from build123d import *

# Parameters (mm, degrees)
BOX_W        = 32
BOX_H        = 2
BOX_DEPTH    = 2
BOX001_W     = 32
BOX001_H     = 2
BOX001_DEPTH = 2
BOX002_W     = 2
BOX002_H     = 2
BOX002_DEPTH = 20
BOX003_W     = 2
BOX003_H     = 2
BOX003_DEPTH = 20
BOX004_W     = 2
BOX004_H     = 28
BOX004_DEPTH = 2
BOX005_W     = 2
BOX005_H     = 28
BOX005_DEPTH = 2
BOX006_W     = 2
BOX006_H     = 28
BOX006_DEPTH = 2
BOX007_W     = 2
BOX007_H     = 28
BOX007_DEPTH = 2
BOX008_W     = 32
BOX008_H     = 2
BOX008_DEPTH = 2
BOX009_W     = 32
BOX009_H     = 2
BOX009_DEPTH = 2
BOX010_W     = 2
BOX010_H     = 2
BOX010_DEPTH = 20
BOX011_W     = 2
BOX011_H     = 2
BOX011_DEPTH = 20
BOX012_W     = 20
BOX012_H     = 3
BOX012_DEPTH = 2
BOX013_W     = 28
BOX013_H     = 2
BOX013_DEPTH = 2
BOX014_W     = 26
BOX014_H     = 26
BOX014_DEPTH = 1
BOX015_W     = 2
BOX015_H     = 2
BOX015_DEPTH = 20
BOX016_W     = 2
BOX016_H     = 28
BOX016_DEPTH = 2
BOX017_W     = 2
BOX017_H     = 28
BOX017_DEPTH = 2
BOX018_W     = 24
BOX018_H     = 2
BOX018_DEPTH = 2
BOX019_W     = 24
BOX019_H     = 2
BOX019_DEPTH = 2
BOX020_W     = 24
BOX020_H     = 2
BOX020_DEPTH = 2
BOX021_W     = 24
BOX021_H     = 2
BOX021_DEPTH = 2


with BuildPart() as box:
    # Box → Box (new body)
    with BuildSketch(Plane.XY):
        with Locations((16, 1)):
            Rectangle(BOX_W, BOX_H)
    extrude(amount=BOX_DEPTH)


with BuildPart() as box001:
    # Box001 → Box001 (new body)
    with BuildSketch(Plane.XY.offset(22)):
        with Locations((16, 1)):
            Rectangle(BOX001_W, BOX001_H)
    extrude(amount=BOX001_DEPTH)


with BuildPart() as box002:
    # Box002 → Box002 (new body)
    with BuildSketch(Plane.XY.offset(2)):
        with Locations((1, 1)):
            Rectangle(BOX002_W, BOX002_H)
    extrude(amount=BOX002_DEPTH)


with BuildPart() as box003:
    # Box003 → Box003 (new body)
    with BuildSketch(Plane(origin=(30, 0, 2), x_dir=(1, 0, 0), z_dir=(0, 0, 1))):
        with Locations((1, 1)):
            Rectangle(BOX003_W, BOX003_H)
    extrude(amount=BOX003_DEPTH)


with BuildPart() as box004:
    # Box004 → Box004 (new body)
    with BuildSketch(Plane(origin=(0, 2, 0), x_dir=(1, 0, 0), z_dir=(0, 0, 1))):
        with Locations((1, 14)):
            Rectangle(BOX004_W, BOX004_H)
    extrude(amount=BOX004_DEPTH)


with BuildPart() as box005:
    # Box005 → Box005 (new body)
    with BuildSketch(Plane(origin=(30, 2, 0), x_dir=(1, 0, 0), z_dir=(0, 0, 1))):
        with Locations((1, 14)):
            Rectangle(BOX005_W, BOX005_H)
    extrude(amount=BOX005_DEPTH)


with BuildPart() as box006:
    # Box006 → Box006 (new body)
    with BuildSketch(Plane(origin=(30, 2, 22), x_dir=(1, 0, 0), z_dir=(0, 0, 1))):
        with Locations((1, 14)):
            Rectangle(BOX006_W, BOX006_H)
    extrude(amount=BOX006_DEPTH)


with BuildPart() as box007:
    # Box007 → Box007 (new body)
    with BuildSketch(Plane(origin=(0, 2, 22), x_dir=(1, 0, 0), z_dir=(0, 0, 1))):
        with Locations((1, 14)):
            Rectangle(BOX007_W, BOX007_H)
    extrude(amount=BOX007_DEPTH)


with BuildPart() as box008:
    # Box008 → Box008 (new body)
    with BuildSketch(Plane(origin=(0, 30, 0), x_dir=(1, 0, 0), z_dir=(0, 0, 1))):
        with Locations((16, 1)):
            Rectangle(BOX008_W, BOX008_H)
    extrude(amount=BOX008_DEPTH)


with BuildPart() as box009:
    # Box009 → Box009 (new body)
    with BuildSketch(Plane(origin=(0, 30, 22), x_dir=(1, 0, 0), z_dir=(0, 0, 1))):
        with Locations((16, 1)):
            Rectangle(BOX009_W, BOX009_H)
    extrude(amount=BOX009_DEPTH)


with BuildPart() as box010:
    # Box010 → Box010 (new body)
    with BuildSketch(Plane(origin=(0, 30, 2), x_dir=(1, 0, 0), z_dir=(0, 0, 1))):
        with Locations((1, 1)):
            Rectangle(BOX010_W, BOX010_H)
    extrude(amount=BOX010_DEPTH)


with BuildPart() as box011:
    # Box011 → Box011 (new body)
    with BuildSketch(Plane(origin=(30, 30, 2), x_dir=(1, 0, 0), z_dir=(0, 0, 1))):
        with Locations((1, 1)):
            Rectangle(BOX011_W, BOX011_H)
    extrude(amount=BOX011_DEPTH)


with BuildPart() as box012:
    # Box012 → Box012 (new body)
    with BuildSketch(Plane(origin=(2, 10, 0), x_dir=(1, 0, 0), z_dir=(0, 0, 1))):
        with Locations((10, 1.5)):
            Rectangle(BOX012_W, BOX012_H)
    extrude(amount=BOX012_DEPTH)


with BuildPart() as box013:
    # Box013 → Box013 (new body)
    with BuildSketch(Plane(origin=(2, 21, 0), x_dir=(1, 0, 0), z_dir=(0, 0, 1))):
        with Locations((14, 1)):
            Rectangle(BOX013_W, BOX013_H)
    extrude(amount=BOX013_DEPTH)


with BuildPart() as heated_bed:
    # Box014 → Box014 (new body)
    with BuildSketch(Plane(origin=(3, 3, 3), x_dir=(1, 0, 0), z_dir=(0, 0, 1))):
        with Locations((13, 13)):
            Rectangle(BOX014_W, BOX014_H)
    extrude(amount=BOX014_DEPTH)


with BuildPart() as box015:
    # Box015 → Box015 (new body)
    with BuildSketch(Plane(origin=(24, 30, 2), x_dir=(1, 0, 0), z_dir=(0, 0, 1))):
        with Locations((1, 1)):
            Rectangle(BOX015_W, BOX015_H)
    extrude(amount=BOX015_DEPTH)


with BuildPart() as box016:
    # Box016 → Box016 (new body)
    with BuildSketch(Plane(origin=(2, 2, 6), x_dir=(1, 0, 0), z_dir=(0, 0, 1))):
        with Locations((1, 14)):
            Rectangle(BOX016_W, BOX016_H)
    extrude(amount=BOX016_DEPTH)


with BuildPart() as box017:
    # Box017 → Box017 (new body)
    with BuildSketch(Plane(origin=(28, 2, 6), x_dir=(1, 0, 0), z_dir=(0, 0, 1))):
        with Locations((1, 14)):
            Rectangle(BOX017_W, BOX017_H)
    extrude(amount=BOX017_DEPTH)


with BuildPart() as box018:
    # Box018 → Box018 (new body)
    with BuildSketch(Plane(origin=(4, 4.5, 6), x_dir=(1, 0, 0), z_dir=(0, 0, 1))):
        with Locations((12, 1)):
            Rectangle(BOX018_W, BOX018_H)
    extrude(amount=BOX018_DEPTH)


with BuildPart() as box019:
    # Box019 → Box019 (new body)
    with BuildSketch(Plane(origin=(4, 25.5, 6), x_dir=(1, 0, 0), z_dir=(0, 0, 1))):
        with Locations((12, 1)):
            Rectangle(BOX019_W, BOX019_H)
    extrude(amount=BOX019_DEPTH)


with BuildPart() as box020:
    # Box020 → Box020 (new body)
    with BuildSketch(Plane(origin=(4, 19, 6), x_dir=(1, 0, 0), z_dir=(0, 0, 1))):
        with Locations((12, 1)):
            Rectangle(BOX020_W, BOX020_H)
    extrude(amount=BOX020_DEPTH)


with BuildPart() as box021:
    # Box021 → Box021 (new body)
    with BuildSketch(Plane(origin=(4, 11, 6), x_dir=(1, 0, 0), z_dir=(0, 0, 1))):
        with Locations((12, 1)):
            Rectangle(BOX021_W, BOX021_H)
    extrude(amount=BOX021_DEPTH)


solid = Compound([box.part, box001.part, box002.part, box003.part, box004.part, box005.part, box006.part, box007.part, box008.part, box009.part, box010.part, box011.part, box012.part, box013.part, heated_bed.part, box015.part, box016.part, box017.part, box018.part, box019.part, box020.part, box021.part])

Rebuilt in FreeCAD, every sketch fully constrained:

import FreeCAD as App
import Part
import Sketcher

V = App.Vector
Q = App.Units.Quantity

doc = App.newDocument("Part")
params = doc.addObject("Spreadsheet::Sheet", "Params")
for row, (alias, value) in enumerate([
    ("sketch1_width", "32 mm"),
    ("sketch1_height", "2 mm"),
    ("pad1_length", "2 mm"),
    ("sketch2_width", "32 mm"),
    ("sketch2_height", "2 mm"),
    ("pad2_length", "2 mm"),
    ("sketch3_width", "2 mm"),
    ("pad3_length", "20 mm"),
    ("sketch4_width", "2 mm"),
    ("pad4_length", "20 mm"),
    ("sketch5_width", "2 mm"),
    ("sketch5_height", "28 mm"),
    ("pad5_length", "2 mm"),
    ("sketch6_width", "2 mm"),
    ("sketch6_height", "28 mm"),
    ("pad6_length", "2 mm"),
    ("sketch7_width", "2 mm"),
    ("sketch7_height", "28 mm"),
    ("pad7_length", "2 mm"),
    ("sketch8_width", "2 mm"),
    ("sketch8_height", "28 mm"),
    ("pad8_length", "2 mm"),
    ("sketch9_width", "32 mm"),
    ("sketch9_height", "2 mm"),
    ("pad9_length", "2 mm"),
    ("sketch10_width", "32 mm"),
    ("sketch10_height", "2 mm"),
    ("pad10_length", "2 mm"),
    ("sketch11_width", "2 mm"),
    ("pad11_length", "20 mm"),
    ("sketch12_width", "2 mm"),
    ("pad12_length", "20 mm"),
    ("sketch13_width", "20 mm"),
    ("sketch13_height", "3 mm"),
    ("pad13_length", "2 mm"),
    ("sketch14_width", "28 mm"),
    ("sketch14_height", "2 mm"),
    ("pad14_length", "2 mm"),
    ("sketch15_width", "26 mm"),
    ("pad15_length", "1 mm"),
    ("sketch16_width", "2 mm"),
    ("pad16_length", "20 mm"),
    ("sketch17_width", "2 mm"),
    ("sketch17_height", "28 mm"),
    ("pad17_length", "2 mm"),
    ("sketch18_width", "2 mm"),
    ("sketch18_height", "28 mm"),
    ("pad18_length", "2 mm"),
    ("sketch19_width", "24 mm"),
    ("sketch19_height", "2 mm"),
    ("pad19_length", "2 mm"),
    ("sketch20_width", "24 mm"),
    ("sketch20_height", "2 mm"),
    ("pad20_length", "2 mm"),
    ("sketch21_width", "24 mm"),
    ("sketch21_height", "2 mm"),
    ("pad21_length", "2 mm"),
    ("sketch22_width", "24 mm"),
    ("sketch22_height", "2 mm"),
    ("pad22_length", "2 mm"),
], start=1):
    params.set(f"A{row}", alias)
    params.set(f"B{row}", "=" + value)
    params.setAlias(f"B{row}", alias)

body = doc.addObject("PartDesign::Body", "Body")

# Sketch on XY plane
sketch1 = body.newObject("Sketcher::SketchObject", "Sketch")
sketch1.AttachmentSupport = (doc.getObject("XY_Plane"), [""])
sketch1.MapMode = "FlatFace"
sketch1.addGeometry([
    Part.LineSegment(V(0, 2, 0), V(0, 0, 0)),
    Part.LineSegment(V(0, 0, 0), V(32, 0, 0)),
    Part.LineSegment(V(32, 0, 0), V(32, 2, 0)),
    Part.LineSegment(V(32, 2, 0), V(0, 2, 0)),
], False)
sketch1.addConstraint([
    Sketcher.Constraint("Coincident", 0, 2, 1, 1),
    Sketcher.Constraint("Coincident", 1, 2, 2, 1),
    Sketcher.Constraint("Coincident", 2, 2, 3, 1),
    Sketcher.Constraint("Coincident", 3, 2, 0, 1),
    Sketcher.Constraint("Vertical", 0),
    Sketcher.Constraint("Horizontal", 1),
    Sketcher.Constraint("Vertical", 2),
    Sketcher.Constraint("Horizontal", 3),
    Sketcher.Constraint("Coincident", 0, 2, -1, 1),
    Sketcher.Constraint("DistanceX", 1, 1, 1, 2, Q("32 mm")),
    Sketcher.Constraint("DistanceY", 0, 2, 0, 1, Q("2 mm")),
])
sketch1.setExpression("Constraints[9]", "Params.sketch1_width")
sketch1.setExpression("Constraints[10]", "Params.sketch1_height")
pad1 = body.newObject("PartDesign::Pad", "Pad")
pad1.Profile = sketch1
pad1.setExpression("Length", "Params.pad1_length")
body2 = doc.addObject("PartDesign::Body", "Body001")

# Sketch on XY plane
sketch2 = body2.newObject("Sketcher::SketchObject", "Sketch001")
sketch2.AttachmentSupport = (doc.getObject("XY_Plane001"), [""])
sketch2.MapMode = "FlatFace"
sketch2.AttachmentOffset = App.Placement(V(0, 0, 22), App.Rotation())
sketch2.addGeometry([
    Part.LineSegment(V(0, 2, 0), V(0, 0, 0)),
    Part.LineSegment(V(0, 0, 0), V(32, 0, 0)),
    Part.LineSegment(V(32, 0, 0), V(32, 2, 0)),
    Part.LineSegment(V(32, 2, 0), V(0, 2, 0)),
], False)
sketch2.addConstraint([
    Sketcher.Constraint("Coincident", 0, 2, 1, 1),
    Sketcher.Constraint("Coincident", 1, 2, 2, 1),
    Sketcher.Constraint("Coincident", 2, 2, 3, 1),
    Sketcher.Constraint("Coincident", 3, 2, 0, 1),
    Sketcher.Constraint("Vertical", 0),
    Sketcher.Constraint("Horizontal", 1),
    Sketcher.Constraint("Vertical", 2),
    Sketcher.Constraint("Horizontal", 3),
    Sketcher.Constraint("Coincident", 0, 2, -1, 1),
    Sketcher.Constraint("DistanceX", 1, 1, 1, 2, Q("32 mm")),
    Sketcher.Constraint("DistanceY", 0, 2, 0, 1, Q("2 mm")),
])
sketch2.setExpression("Constraints[9]", "Params.sketch2_width")
sketch2.setExpression("Constraints[10]", "Params.sketch2_height")
pad2 = body2.newObject("PartDesign::Pad", "Pad001")
pad2.Profile = sketch2
pad2.setExpression("Length", "Params.pad2_length")
body3 = doc.addObject("PartDesign::Body", "Body002")

# Sketch on XY plane
sketch3 = body3.newObject("Sketcher::SketchObject", "Sketch002")
sketch3.AttachmentSupport = (doc.getObject("XY_Plane002"), [""])
sketch3.MapMode = "FlatFace"
sketch3.AttachmentOffset = App.Placement(V(0, 0, 2), App.Rotation())
sketch3.addGeometry([
    Part.LineSegment(V(0, 2, 0), V(0, 0, 0)),
    Part.LineSegment(V(0, 0, 0), V(2, 0, 0)),
    Part.LineSegment(V(2, 0, 0), V(2, 2, 0)),
    Part.LineSegment(V(2, 2, 0), V(0, 2, 0)),
], False)
sketch3.addConstraint([
    Sketcher.Constraint("Coincident", 0, 2, 1, 1),
    Sketcher.Constraint("Coincident", 1, 2, 2, 1),
    Sketcher.Constraint("Coincident", 2, 2, 3, 1),
    Sketcher.Constraint("Coincident", 3, 2, 0, 1),
    Sketcher.Constraint("Vertical", 0),
    Sketcher.Constraint("Horizontal", 1),
    Sketcher.Constraint("Vertical", 2),
    Sketcher.Constraint("Horizontal", 3),
    Sketcher.Constraint("Coincident", 0, 2, -1, 1),
    Sketcher.Constraint("Equal", 3, 0),
    Sketcher.Constraint("DistanceX", 1, 1, 1, 2, Q("2 mm")),
])
sketch3.setExpression("Constraints[10]", "Params.sketch3_width")
pad3 = body3.newObject("PartDesign::Pad", "Pad002")
pad3.Profile = sketch3
pad3.setExpression("Length", "Params.pad3_length")
body4 = doc.addObject("PartDesign::Body", "Body003")

# Sketch on XY plane
sketch4 = body4.newObject("Sketcher::SketchObject", "Sketch003")
sketch4.AttachmentSupport = (doc.getObject("XY_Plane003"), [""])
sketch4.MapMode = "FlatFace"
sketch4.AttachmentOffset = App.Placement(V(0, 0, 2), App.Rotation())
sketch4.addGeometry([
    Part.LineSegment(V(30, 2, 0), V(30, 0, 0)),
    Part.LineSegment(V(30, 0, 0), V(32, 0, 0)),
    Part.LineSegment(V(32, 0, 0), V(32, 2, 0)),
    Part.LineSegment(V(32, 2, 0), V(30, 2, 0)),
], False)
sketch4.addConstraint([
    Sketcher.Constraint("Coincident", 0, 2, 1, 1),
    Sketcher.Constraint("Coincident", 1, 2, 2, 1),
    Sketcher.Constraint("Coincident", 2, 2, 3, 1),
    Sketcher.Constraint("Coincident", 3, 2, 0, 1),
    Sketcher.Constraint("Vertical", 0),
    Sketcher.Constraint("Horizontal", 1),
    Sketcher.Constraint("Vertical", 2),
    Sketcher.Constraint("Horizontal", 3),
    Sketcher.Constraint("PointOnObject", 0, 2, -1),
    Sketcher.Constraint("Equal", 3, 0),
    Sketcher.Constraint("DistanceX", 1, 1, 1, 2, Q("2 mm")),
    Sketcher.Constraint("DistanceX", -1, 1, 0, 2, Q("30 mm")),
])
sketch4.setExpression("Constraints[10]", "Params.sketch4_width")
pad4 = body4.newObject("PartDesign::Pad", "Pad003")
pad4.Profile = sketch4
pad4.setExpression("Length", "Params.pad4_length")
body5 = doc.addObject("PartDesign::Body", "Body004")

# Sketch on XY plane
sketch5 = body5.newObject("Sketcher::SketchObject", "Sketch004")
sketch5.AttachmentSupport = (doc.getObject("XY_Plane004"), [""])
sketch5.MapMode = "FlatFace"
sketch5.addGeometry([
    Part.LineSegment(V(0, 30, 0), V(0, 2, 0)),
    Part.LineSegment(V(0, 2, 0), V(2, 2, 0)),
    Part.LineSegment(V(2, 2, 0), V(2, 30, 0)),
    Part.LineSegment(V(2, 30, 0), V(0, 30, 0)),
], False)
sketch5.addConstraint([
    Sketcher.Constraint("Coincident", 0, 2, 1, 1),
    Sketcher.Constraint("Coincident", 1, 2, 2, 1),
    Sketcher.Constraint("Coincident", 2, 2, 3, 1),
    Sketcher.Constraint("Coincident", 3, 2, 0, 1),
    Sketcher.Constraint("Vertical", 0),
    Sketcher.Constraint("Horizontal", 1),
    Sketcher.Constraint("Vertical", 2),
    Sketcher.Constraint("Horizontal", 3),
    Sketcher.Constraint("PointOnObject", 0, 2, -2),
    Sketcher.Constraint("DistanceX", 1, 1, 1, 2, Q("2 mm")),
    Sketcher.Constraint("DistanceY", 0, 2, 0, 1, Q("28 mm")),
    Sketcher.Constraint("DistanceY", -1, 1, 0, 2, Q("2 mm")),
])
sketch5.setExpression("Constraints[9]", "Params.sketch5_width")
sketch5.setExpression("Constraints[10]", "Params.sketch5_height")
pad5 = body5.newObject("PartDesign::Pad", "Pad004")
pad5.Profile = sketch5
pad5.setExpression("Length", "Params.pad5_length")
body6 = doc.addObject("PartDesign::Body", "Body005")

# Sketch on XY plane
sketch6 = body6.newObject("Sketcher::SketchObject", "Sketch005")
sketch6.AttachmentSupport = (doc.getObject("XY_Plane005"), [""])
sketch6.MapMode = "FlatFace"
sketch6.addGeometry([
    Part.LineSegment(V(30, 30, 0), V(30, 2, 0)),
    Part.LineSegment(V(30, 2, 0), V(32, 2, 0)),
    Part.LineSegment(V(32, 2, 0), V(32, 30, 0)),
    Part.LineSegment(V(32, 30, 0), V(30, 30, 0)),
], False)
sketch6.addConstraint([
    Sketcher.Constraint("Coincident", 0, 2, 1, 1),
    Sketcher.Constraint("Coincident", 1, 2, 2, 1),
    Sketcher.Constraint("Coincident", 2, 2, 3, 1),
    Sketcher.Constraint("Coincident", 3, 2, 0, 1),
    Sketcher.Constraint("Vertical", 0),
    Sketcher.Constraint("Horizontal", 1),
    Sketcher.Constraint("Vertical", 2),
    Sketcher.Constraint("Horizontal", 3),
    Sketcher.Constraint("DistanceX", 1, 1, 1, 2, Q("2 mm")),
    Sketcher.Constraint("DistanceY", 0, 2, 0, 1, Q("28 mm")),
    Sketcher.Constraint("DistanceX", -1, 1, 0, 2, Q("30 mm")),
    Sketcher.Constraint("DistanceY", -1, 1, 0, 2, Q("2 mm")),
])
sketch6.setExpression("Constraints[8]", "Params.sketch6_width")
sketch6.setExpression("Constraints[9]", "Params.sketch6_height")
pad6 = body6.newObject("PartDesign::Pad", "Pad005")
pad6.Profile = sketch6
pad6.setExpression("Length", "Params.pad6_length")
body7 = doc.addObject("PartDesign::Body", "Body006")

# Sketch on XY plane
sketch7 = body7.newObject("Sketcher::SketchObject", "Sketch006")
sketch7.AttachmentSupport = (doc.getObject("XY_Plane006"), [""])
sketch7.MapMode = "FlatFace"
sketch7.AttachmentOffset = App.Placement(V(0, 0, 22), App.Rotation())
sketch7.addGeometry([
    Part.LineSegment(V(30, 30, 0), V(30, 2, 0)),
    Part.LineSegment(V(30, 2, 0), V(32, 2, 0)),
    Part.LineSegment(V(32, 2, 0), V(32, 30, 0)),
    Part.LineSegment(V(32, 30, 0), V(30, 30, 0)),
], False)
sketch7.addConstraint([
    Sketcher.Constraint("Coincident", 0, 2, 1, 1),
    Sketcher.Constraint("Coincident", 1, 2, 2, 1),
    Sketcher.Constraint("Coincident", 2, 2, 3, 1),
    Sketcher.Constraint("Coincident", 3, 2, 0, 1),
    Sketcher.Constraint("Vertical", 0),
    Sketcher.Constraint("Horizontal", 1),
    Sketcher.Constraint("Vertical", 2),
    Sketcher.Constraint("Horizontal", 3),
    Sketcher.Constraint("DistanceX", 1, 1, 1, 2, Q("2 mm")),
    Sketcher.Constraint("DistanceY", 0, 2, 0, 1, Q("28 mm")),
    Sketcher.Constraint("DistanceX", -1, 1, 0, 2, Q("30 mm")),
    Sketcher.Constraint("DistanceY", -1, 1, 0, 2, Q("2 mm")),
])
sketch7.setExpression("Constraints[8]", "Params.sketch7_width")
sketch7.setExpression("Constraints[9]", "Params.sketch7_height")
pad7 = body7.newObject("PartDesign::Pad", "Pad006")
pad7.Profile = sketch7
pad7.setExpression("Length", "Params.pad7_length")
body8 = doc.addObject("PartDesign::Body", "Body007")

# Sketch on XY plane
sketch8 = body8.newObject("Sketcher::SketchObject", "Sketch007")
sketch8.AttachmentSupport = (doc.getObject("XY_Plane007"), [""])
sketch8.MapMode = "FlatFace"
sketch8.AttachmentOffset = App.Placement(V(0, 0, 22), App.Rotation())
sketch8.addGeometry([
    Part.LineSegment(V(0, 30, 0), V(0, 2, 0)),
    Part.LineSegment(V(0, 2, 0), V(2, 2, 0)),
    Part.LineSegment(V(2, 2, 0), V(2, 30, 0)),
    Part.LineSegment(V(2, 30, 0), V(0, 30, 0)),
], False)
sketch8.addConstraint([
    Sketcher.Constraint("Coincident", 0, 2, 1, 1),
    Sketcher.Constraint("Coincident", 1, 2, 2, 1),
    Sketcher.Constraint("Coincident", 2, 2, 3, 1),
    Sketcher.Constraint("Coincident", 3, 2, 0, 1),
    Sketcher.Constraint("Vertical", 0),
    Sketcher.Constraint("Horizontal", 1),
    Sketcher.Constraint("Vertical", 2),
    Sketcher.Constraint("Horizontal", 3),
    Sketcher.Constraint("PointOnObject", 0, 2, -2),
    Sketcher.Constraint("DistanceX", 1, 1, 1, 2, Q("2 mm")),
    Sketcher.Constraint("DistanceY", 0, 2, 0, 1, Q("28 mm")),
    Sketcher.Constraint("DistanceY", -1, 1, 0, 2, Q("2 mm")),
])
sketch8.setExpression("Constraints[9]", "Params.sketch8_width")
sketch8.setExpression("Constraints[10]", "Params.sketch8_height")
pad8 = body8.newObject("PartDesign::Pad", "Pad007")
pad8.Profile = sketch8
pad8.setExpression("Length", "Params.pad8_length")
body9 = doc.addObject("PartDesign::Body", "Body008")

# Sketch on XY plane
sketch9 = body9.newObject("Sketcher::SketchObject", "Sketch008")
sketch9.AttachmentSupport = (doc.getObject("XY_Plane008"), [""])
sketch9.MapMode = "FlatFace"
sketch9.addGeometry([
    Part.LineSegment(V(0, 32, 0), V(0, 30, 0)),
    Part.LineSegment(V(0, 30, 0), V(32, 30, 0)),
    Part.LineSegment(V(32, 30, 0), V(32, 32, 0)),
    Part.LineSegment(V(32, 32, 0), V(0, 32, 0)),
], False)
sketch9.addConstraint([
    Sketcher.Constraint("Coincident", 0, 2, 1, 1),
    Sketcher.Constraint("Coincident", 1, 2, 2, 1),
    Sketcher.Constraint("Coincident", 2, 2, 3, 1),
    Sketcher.Constraint("Coincident", 3, 2, 0, 1),
    Sketcher.Constraint("Vertical", 0),
    Sketcher.Constraint("Horizontal", 1),
    Sketcher.Constraint("Vertical", 2),
    Sketcher.Constraint("Horizontal", 3),
    Sketcher.Constraint("PointOnObject", 0, 2, -2),
    Sketcher.Constraint("DistanceX", 1, 1, 1, 2, Q("32 mm")),
    Sketcher.Constraint("DistanceY", 0, 2, 0, 1, Q("2 mm")),
    Sketcher.Constraint("DistanceY", -1, 1, 0, 2, Q("30 mm")),
])
sketch9.setExpression("Constraints[9]", "Params.sketch9_width")
sketch9.setExpression("Constraints[10]", "Params.sketch9_height")
pad9 = body9.newObject("PartDesign::Pad", "Pad008")
pad9.Profile = sketch9
pad9.setExpression("Length", "Params.pad9_length")
body10 = doc.addObject("PartDesign::Body", "Body009")

# Sketch on XY plane
sketch10 = body10.newObject("Sketcher::SketchObject", "Sketch009")
sketch10.AttachmentSupport = (doc.getObject("XY_Plane009"), [""])
sketch10.MapMode = "FlatFace"
sketch10.AttachmentOffset = App.Placement(V(0, 0, 22), App.Rotation())
sketch10.addGeometry([
    Part.LineSegment(V(0, 32, 0), V(0, 30, 0)),
    Part.LineSegment(V(0, 30, 0), V(32, 30, 0)),
    Part.LineSegment(V(32, 30, 0), V(32, 32, 0)),
    Part.LineSegment(V(32, 32, 0), V(0, 32, 0)),
], False)
sketch10.addConstraint([
    Sketcher.Constraint("Coincident", 0, 2, 1, 1),
    Sketcher.Constraint("Coincident", 1, 2, 2, 1),
    Sketcher.Constraint("Coincident", 2, 2, 3, 1),
    Sketcher.Constraint("Coincident", 3, 2, 0, 1),
    Sketcher.Constraint("Vertical", 0),
    Sketcher.Constraint("Horizontal", 1),
    Sketcher.Constraint("Vertical", 2),
    Sketcher.Constraint("Horizontal", 3),
    Sketcher.Constraint("PointOnObject", 0, 2, -2),
    Sketcher.Constraint("DistanceX", 1, 1, 1, 2, Q("32 mm")),
    Sketcher.Constraint("DistanceY", 0, 2, 0, 1, Q("2 mm")),
    Sketcher.Constraint("DistanceY", -1, 1, 0, 2, Q("30 mm")),
])
sketch10.setExpression("Constraints[9]", "Params.sketch10_width")
sketch10.setExpression("Constraints[10]", "Params.sketch10_height")
pad10 = body10.newObject("PartDesign::Pad", "Pad009")
pad10.Profile = sketch10
pad10.setExpression("Length", "Params.pad10_length")
body11 = doc.addObject("PartDesign::Body", "Body010")

# Sketch on XY plane
sketch11 = body11.newObject("Sketcher::SketchObject", "Sketch010")
sketch11.AttachmentSupport = (doc.getObject("XY_Plane010"), [""])
sketch11.MapMode = "FlatFace"
sketch11.AttachmentOffset = App.Placement(V(0, 0, 2), App.Rotation())
sketch11.addGeometry([
    Part.LineSegment(V(0, 32, 0), V(0, 30, 0)),
    Part.LineSegment(V(0, 30, 0), V(2, 30, 0)),
    Part.LineSegment(V(2, 30, 0), V(2, 32, 0)),
    Part.LineSegment(V(2, 32, 0), V(0, 32, 0)),
], False)
sketch11.addConstraint([
    Sketcher.Constraint("Coincident", 0, 2, 1, 1),
    Sketcher.Constraint("Coincident", 1, 2, 2, 1),
    Sketcher.Constraint("Coincident", 2, 2, 3, 1),
    Sketcher.Constraint("Coincident", 3, 2, 0, 1),
    Sketcher.Constraint("Vertical", 0),
    Sketcher.Constraint("Horizontal", 1),
    Sketcher.Constraint("Vertical", 2),
    Sketcher.Constraint("Horizontal", 3),
    Sketcher.Constraint("PointOnObject", 0, 2, -2),
    Sketcher.Constraint("Equal", 3, 0),
    Sketcher.Constraint("DistanceX", 1, 1, 1, 2, Q("2 mm")),
    Sketcher.Constraint("DistanceY", -1, 1, 0, 2, Q("30 mm")),
])
sketch11.setExpression("Constraints[10]", "Params.sketch11_width")
pad11 = body11.newObject("PartDesign::Pad", "Pad010")
pad11.Profile = sketch11
pad11.setExpression("Length", "Params.pad11_length")
body12 = doc.addObject("PartDesign::Body", "Body011")

# Sketch on XY plane
sketch12 = body12.newObject("Sketcher::SketchObject", "Sketch011")
sketch12.AttachmentSupport = (doc.getObject("XY_Plane011"), [""])
sketch12.MapMode = "FlatFace"
sketch12.AttachmentOffset = App.Placement(V(0, 0, 2), App.Rotation())
sketch12.addGeometry([
    Part.LineSegment(V(30, 32, 0), V(30, 30, 0)),
    Part.LineSegment(V(30, 30, 0), V(32, 30, 0)),
    Part.LineSegment(V(32, 30, 0), V(32, 32, 0)),
    Part.LineSegment(V(32, 32, 0), V(30, 32, 0)),
], False)
sketch12.addConstraint([
    Sketcher.Constraint("Coincident", 0, 2, 1, 1),
    Sketcher.Constraint("Coincident", 1, 2, 2, 1),
    Sketcher.Constraint("Coincident", 2, 2, 3, 1),
    Sketcher.Constraint("Coincident", 3, 2, 0, 1),
    Sketcher.Constraint("Vertical", 0),
    Sketcher.Constraint("Horizontal", 1),
    Sketcher.Constraint("Vertical", 2),
    Sketcher.Constraint("Horizontal", 3),
    Sketcher.Constraint("Equal", 3, 0),
    Sketcher.Constraint("DistanceX", 1, 1, 1, 2, Q("2 mm")),
    Sketcher.Constraint("DistanceX", -1, 1, 0, 2, Q("30 mm")),
    Sketcher.Constraint("DistanceY", -1, 1, 0, 2, Q("30 mm")),
])
sketch12.setExpression("Constraints[9]", "Params.sketch12_width")
pad12 = body12.newObject("PartDesign::Pad", "Pad011")
pad12.Profile = sketch12
pad12.setExpression("Length", "Params.pad12_length")
body13 = doc.addObject("PartDesign::Body", "Body012")

# Sketch on XY plane
sketch13 = body13.newObject("Sketcher::SketchObject", "Sketch012")
sketch13.AttachmentSupport = (doc.getObject("XY_Plane012"), [""])
sketch13.MapMode = "FlatFace"
sketch13.addGeometry([
    Part.LineSegment(V(2, 13, 0), V(2, 10, 0)),
    Part.LineSegment(V(2, 10, 0), V(22, 10, 0)),
    Part.LineSegment(V(22, 10, 0), V(22, 13, 0)),
    Part.LineSegment(V(22, 13, 0), V(2, 13, 0)),
], False)
sketch13.addConstraint([
    Sketcher.Constraint("Coincident", 0, 2, 1, 1),
    Sketcher.Constraint("Coincident", 1, 2, 2, 1),
    Sketcher.Constraint("Coincident", 2, 2, 3, 1),
    Sketcher.Constraint("Coincident", 3, 2, 0, 1),
    Sketcher.Constraint("Vertical", 0),
    Sketcher.Constraint("Horizontal", 1),
    Sketcher.Constraint("Vertical", 2),
    Sketcher.Constraint("Horizontal", 3),
    Sketcher.Constraint("DistanceX", 1, 1, 1, 2, Q("20 mm")),
    Sketcher.Constraint("DistanceY", 0, 2, 0, 1, Q("3 mm")),
    Sketcher.Constraint("DistanceX", -1, 1, 0, 2, Q("2 mm")),
    Sketcher.Constraint("DistanceY", -1, 1, 0, 2, Q("10 mm")),
])
sketch13.setExpression("Constraints[8]", "Params.sketch13_width")
sketch13.setExpression("Constraints[9]", "Params.sketch13_height")
pad13 = body13.newObject("PartDesign::Pad", "Pad012")
pad13.Profile = sketch13
pad13.setExpression("Length", "Params.pad13_length")
body14 = doc.addObject("PartDesign::Body", "Body013")

# Sketch on XY plane
sketch14 = body14.newObject("Sketcher::SketchObject", "Sketch013")
sketch14.AttachmentSupport = (doc.getObject("XY_Plane013"), [""])
sketch14.MapMode = "FlatFace"
sketch14.addGeometry([
    Part.LineSegment(V(2, 23, 0), V(2, 21, 0)),
    Part.LineSegment(V(2, 21, 0), V(30, 21, 0)),
    Part.LineSegment(V(30, 21, 0), V(30, 23, 0)),
    Part.LineSegment(V(30, 23, 0), V(2, 23, 0)),
], False)
sketch14.addConstraint([
    Sketcher.Constraint("Coincident", 0, 2, 1, 1),
    Sketcher.Constraint("Coincident", 1, 2, 2, 1),
    Sketcher.Constraint("Coincident", 2, 2, 3, 1),
    Sketcher.Constraint("Coincident", 3, 2, 0, 1),
    Sketcher.Constraint("Vertical", 0),
    Sketcher.Constraint("Horizontal", 1),
    Sketcher.Constraint("Vertical", 2),
    Sketcher.Constraint("Horizontal", 3),
    Sketcher.Constraint("DistanceX", 1, 1, 1, 2, Q("28 mm")),
    Sketcher.Constraint("DistanceY", 0, 2, 0, 1, Q("2 mm")),
    Sketcher.Constraint("DistanceX", -1, 1, 0, 2, Q("2 mm")),
    Sketcher.Constraint("DistanceY", -1, 1, 0, 2, Q("21 mm")),
])
sketch14.setExpression("Constraints[8]", "Params.sketch14_width")
sketch14.setExpression("Constraints[9]", "Params.sketch14_height")
pad14 = body14.newObject("PartDesign::Pad", "Pad013")
pad14.Profile = sketch14
pad14.setExpression("Length", "Params.pad14_length")
body15 = doc.addObject("PartDesign::Body", "Body014")

# Sketch on XY plane
sketch15 = body15.newObject("Sketcher::SketchObject", "Sketch014")
sketch15.AttachmentSupport = (doc.getObject("XY_Plane014"), [""])
sketch15.MapMode = "FlatFace"
sketch15.AttachmentOffset = App.Placement(V(0, 0, 3), App.Rotation())
sketch15.addGeometry([
    Part.LineSegment(V(3, 29, 0), V(3, 3, 0)),
    Part.LineSegment(V(3, 3, 0), V(29, 3, 0)),
    Part.LineSegment(V(29, 3, 0), V(29, 29, 0)),
    Part.LineSegment(V(29, 29, 0), V(3, 29, 0)),
], False)
sketch15.addConstraint([
    Sketcher.Constraint("Coincident", 0, 2, 1, 1),
    Sketcher.Constraint("Coincident", 1, 2, 2, 1),
    Sketcher.Constraint("Coincident", 2, 2, 3, 1),
    Sketcher.Constraint("Coincident", 3, 2, 0, 1),
    Sketcher.Constraint("Vertical", 0),
    Sketcher.Constraint("Horizontal", 1),
    Sketcher.Constraint("Vertical", 2),
    Sketcher.Constraint("Horizontal", 3),
    Sketcher.Constraint("Equal", 3, 0),
    Sketcher.Constraint("DistanceX", 1, 1, 1, 2, Q("26 mm")),
    Sketcher.Constraint("DistanceX", -1, 1, 0, 2, Q("3 mm")),
    Sketcher.Constraint("DistanceY", -1, 1, 0, 2, Q("3 mm")),
])
sketch15.setExpression("Constraints[9]", "Params.sketch15_width")
pad15 = body15.newObject("PartDesign::Pad", "Pad014")
pad15.Profile = sketch15
pad15.setExpression("Length", "Params.pad15_length")
body16 = doc.addObject("PartDesign::Body", "Body015")

# Sketch on XY plane
sketch16 = body16.newObject("Sketcher::SketchObject", "Sketch015")
sketch16.AttachmentSupport = (doc.getObject("XY_Plane015"), [""])
sketch16.MapMode = "FlatFace"
sketch16.AttachmentOffset = App.Placement(V(0, 0, 2), App.Rotation())
sketch16.addGeometry([
    Part.LineSegment(V(24, 32, 0), V(24, 30, 0)),
    Part.LineSegment(V(24, 30, 0), V(26, 30, 0)),
    Part.LineSegment(V(26, 30, 0), V(26, 32, 0)),
    Part.LineSegment(V(26, 32, 0), V(24, 32, 0)),
], False)
sketch16.addConstraint([
    Sketcher.Constraint("Coincident", 0, 2, 1, 1),
    Sketcher.Constraint("Coincident", 1, 2, 2, 1),
    Sketcher.Constraint("Coincident", 2, 2, 3, 1),
    Sketcher.Constraint("Coincident", 3, 2, 0, 1),
    Sketcher.Constraint("Vertical", 0),
    Sketcher.Constraint("Horizontal", 1),
    Sketcher.Constraint("Vertical", 2),
    Sketcher.Constraint("Horizontal", 3),
    Sketcher.Constraint("Equal", 3, 0),
    Sketcher.Constraint("DistanceX", 1, 1, 1, 2, Q("2 mm")),
    Sketcher.Constraint("DistanceX", -1, 1, 0, 2, Q("24 mm")),
    Sketcher.Constraint("DistanceY", -1, 1, 0, 2, Q("30 mm")),
])
sketch16.setExpression("Constraints[9]", "Params.sketch16_width")
pad16 = body16.newObject("PartDesign::Pad", "Pad015")
pad16.Profile = sketch16
pad16.setExpression("Length", "Params.pad16_length")
body17 = doc.addObject("PartDesign::Body", "Body016")

# Sketch on XY plane
sketch17 = body17.newObject("Sketcher::SketchObject", "Sketch016")
sketch17.AttachmentSupport = (doc.getObject("XY_Plane016"), [""])
sketch17.MapMode = "FlatFace"
sketch17.AttachmentOffset = App.Placement(V(0, 0, 6), App.Rotation())
sketch17.addGeometry([
    Part.LineSegment(V(2, 30, 0), V(2, 2, 0)),
    Part.LineSegment(V(2, 2, 0), V(4, 2, 0)),
    Part.LineSegment(V(4, 2, 0), V(4, 30, 0)),
    Part.LineSegment(V(4, 30, 0), V(2, 30, 0)),
], False)
sketch17.addConstraint([
    Sketcher.Constraint("Coincident", 0, 2, 1, 1),
    Sketcher.Constraint("Coincident", 1, 2, 2, 1),
    Sketcher.Constraint("Coincident", 2, 2, 3, 1),
    Sketcher.Constraint("Coincident", 3, 2, 0, 1),
    Sketcher.Constraint("Vertical", 0),
    Sketcher.Constraint("Horizontal", 1),
    Sketcher.Constraint("Vertical", 2),
    Sketcher.Constraint("Horizontal", 3),
    Sketcher.Constraint("DistanceX", 1, 1, 1, 2, Q("2 mm")),
    Sketcher.Constraint("DistanceY", 0, 2, 0, 1, Q("28 mm")),
    Sketcher.Constraint("DistanceX", -1, 1, 0, 2, Q("2 mm")),
    Sketcher.Constraint("DistanceY", -1, 1, 0, 2, Q("2 mm")),
])
sketch17.setExpression("Constraints[8]", "Params.sketch17_width")
sketch17.setExpression("Constraints[9]", "Params.sketch17_height")
pad17 = body17.newObject("PartDesign::Pad", "Pad016")
pad17.Profile = sketch17
pad17.setExpression("Length", "Params.pad17_length")
body18 = doc.addObject("PartDesign::Body", "Body017")

# Sketch on XY plane
sketch18 = body18.newObject("Sketcher::SketchObject", "Sketch017")
sketch18.AttachmentSupport = (doc.getObject("XY_Plane017"), [""])
sketch18.MapMode = "FlatFace"
sketch18.AttachmentOffset = App.Placement(V(0, 0, 6), App.Rotation())
sketch18.addGeometry([
    Part.LineSegment(V(28, 30, 0), V(28, 2, 0)),
    Part.LineSegment(V(28, 2, 0), V(30, 2, 0)),
    Part.LineSegment(V(30, 2, 0), V(30, 30, 0)),
    Part.LineSegment(V(30, 30, 0), V(28, 30, 0)),
], False)
sketch18.addConstraint([
    Sketcher.Constraint("Coincident", 0, 2, 1, 1),
    Sketcher.Constraint("Coincident", 1, 2, 2, 1),
    Sketcher.Constraint("Coincident", 2, 2, 3, 1),
    Sketcher.Constraint("Coincident", 3, 2, 0, 1),
    Sketcher.Constraint("Vertical", 0),
    Sketcher.Constraint("Horizontal", 1),
    Sketcher.Constraint("Vertical", 2),
    Sketcher.Constraint("Horizontal", 3),
    Sketcher.Constraint("DistanceX", 1, 1, 1, 2, Q("2 mm")),
    Sketcher.Constraint("DistanceY", 0, 2, 0, 1, Q("28 mm")),
    Sketcher.Constraint("DistanceX", -1, 1, 0, 2, Q("28 mm")),
    Sketcher.Constraint("DistanceY", -1, 1, 0, 2, Q("2 mm")),
])
sketch18.setExpression("Constraints[8]", "Params.sketch18_width")
sketch18.setExpression("Constraints[9]", "Params.sketch18_height")
pad18 = body18.newObject("PartDesign::Pad", "Pad017")
pad18.Profile = sketch18
pad18.setExpression("Length", "Params.pad18_length")
body19 = doc.addObject("PartDesign::Body", "Body018")

# Sketch on XY plane
sketch19 = body19.newObject("Sketcher::SketchObject", "Sketch018")
sketch19.AttachmentSupport = (doc.getObject("XY_Plane018"), [""])
sketch19.MapMode = "FlatFace"
sketch19.AttachmentOffset = App.Placement(V(0, 0, 6), App.Rotation())
sketch19.addGeometry([
    Part.LineSegment(V(4, 6.5, 0), V(4, 4.5, 0)),
    Part.LineSegment(V(4, 4.5, 0), V(28, 4.5, 0)),
    Part.LineSegment(V(28, 4.5, 0), V(28, 6.5, 0)),
    Part.LineSegment(V(28, 6.5, 0), V(4, 6.5, 0)),
], False)
sketch19.addConstraint([
    Sketcher.Constraint("Coincident", 0, 2, 1, 1),
    Sketcher.Constraint("Coincident", 1, 2, 2, 1),
    Sketcher.Constraint("Coincident", 2, 2, 3, 1),
    Sketcher.Constraint("Coincident", 3, 2, 0, 1),
    Sketcher.Constraint("Vertical", 0),
    Sketcher.Constraint("Horizontal", 1),
    Sketcher.Constraint("Vertical", 2),
    Sketcher.Constraint("Horizontal", 3),
    Sketcher.Constraint("DistanceX", 1, 1, 1, 2, Q("24 mm")),
    Sketcher.Constraint("DistanceY", 0, 2, 0, 1, Q("2 mm")),
    Sketcher.Constraint("DistanceX", -1, 1, 0, 2, Q("4 mm")),
    Sketcher.Constraint("DistanceY", -1, 1, 0, 2, Q("4.5 mm")),
])
sketch19.setExpression("Constraints[8]", "Params.sketch19_width")
sketch19.setExpression("Constraints[9]", "Params.sketch19_height")
pad19 = body19.newObject("PartDesign::Pad", "Pad018")
pad19.Profile = sketch19
pad19.setExpression("Length", "Params.pad19_length")
body20 = doc.addObject("PartDesign::Body", "Body019")

# Sketch on XY plane
sketch20 = body20.newObject("Sketcher::SketchObject", "Sketch019")
sketch20.AttachmentSupport = (doc.getObject("XY_Plane019"), [""])
sketch20.MapMode = "FlatFace"
sketch20.AttachmentOffset = App.Placement(V(0, 0, 6), App.Rotation())
sketch20.addGeometry([
    Part.LineSegment(V(4, 27.5, 0), V(4, 25.5, 0)),
    Part.LineSegment(V(4, 25.5, 0), V(28, 25.5, 0)),
    Part.LineSegment(V(28, 25.5, 0), V(28, 27.5, 0)),
    Part.LineSegment(V(28, 27.5, 0), V(4, 27.5, 0)),
], False)
sketch20.addConstraint([
    Sketcher.Constraint("Coincident", 0, 2, 1, 1),
    Sketcher.Constraint("Coincident", 1, 2, 2, 1),
    Sketcher.Constraint("Coincident", 2, 2, 3, 1),
    Sketcher.Constraint("Coincident", 3, 2, 0, 1),
    Sketcher.Constraint("Vertical", 0),
    Sketcher.Constraint("Horizontal", 1),
    Sketcher.Constraint("Vertical", 2),
    Sketcher.Constraint("Horizontal", 3),
    Sketcher.Constraint("DistanceX", 1, 1, 1, 2, Q("24 mm")),
    Sketcher.Constraint("DistanceY", 0, 2, 0, 1, Q("2 mm")),
    Sketcher.Constraint("DistanceX", -1, 1, 0, 2, Q("4 mm")),
    Sketcher.Constraint("DistanceY", -1, 1, 0, 2, Q("25.5 mm")),
])
sketch20.setExpression("Constraints[8]", "Params.sketch20_width")
sketch20.setExpression("Constraints[9]", "Params.sketch20_height")
pad20 = body20.newObject("PartDesign::Pad", "Pad019")
pad20.Profile = sketch20
pad20.setExpression("Length", "Params.pad20_length")
body21 = doc.addObject("PartDesign::Body", "Body020")

# Sketch on XY plane
sketch21 = body21.newObject("Sketcher::SketchObject", "Sketch020")
sketch21.AttachmentSupport = (doc.getObject("XY_Plane020"), [""])
sketch21.MapMode = "FlatFace"
sketch21.AttachmentOffset = App.Placement(V(0, 0, 6), App.Rotation())
sketch21.addGeometry([
    Part.LineSegment(V(4, 21, 0), V(4, 19, 0)),
    Part.LineSegment(V(4, 19, 0), V(28, 19, 0)),
    Part.LineSegment(V(28, 19, 0), V(28, 21, 0)),
    Part.LineSegment(V(28, 21, 0), V(4, 21, 0)),
], False)
sketch21.addConstraint([
    Sketcher.Constraint("Coincident", 0, 2, 1, 1),
    Sketcher.Constraint("Coincident", 1, 2, 2, 1),
    Sketcher.Constraint("Coincident", 2, 2, 3, 1),
    Sketcher.Constraint("Coincident", 3, 2, 0, 1),
    Sketcher.Constraint("Vertical", 0),
    Sketcher.Constraint("Horizontal", 1),
    Sketcher.Constraint("Vertical", 2),
    Sketcher.Constraint("Horizontal", 3),
    Sketcher.Constraint("DistanceX", 1, 1, 1, 2, Q("24 mm")),
    Sketcher.Constraint("DistanceY", 0, 2, 0, 1, Q("2 mm")),
    Sketcher.Constraint("DistanceX", -1, 1, 0, 2, Q("4 mm")),
    Sketcher.Constraint("DistanceY", -1, 1, 0, 2, Q("19 mm")),
])
sketch21.setExpression("Constraints[8]", "Params.sketch21_width")
sketch21.setExpression("Constraints[9]", "Params.sketch21_height")
pad21 = body21.newObject("PartDesign::Pad", "Pad020")
pad21.Profile = sketch21
pad21.setExpression("Length", "Params.pad21_length")
body22 = doc.addObject("PartDesign::Body", "Body021")

# Sketch on XY plane
sketch22 = body22.newObject("Sketcher::SketchObject", "Sketch021")
sketch22.AttachmentSupport = (doc.getObject("XY_Plane021"), [""])
sketch22.MapMode = "FlatFace"
sketch22.AttachmentOffset = App.Placement(V(0, 0, 6), App.Rotation())
sketch22.addGeometry([
    Part.LineSegment(V(4, 13, 0), V(4, 11, 0)),
    Part.LineSegment(V(4, 11, 0), V(28, 11, 0)),
    Part.LineSegment(V(28, 11, 0), V(28, 13, 0)),
    Part.LineSegment(V(28, 13, 0), V(4, 13, 0)),
], False)
sketch22.addConstraint([
    Sketcher.Constraint("Coincident", 0, 2, 1, 1),
    Sketcher.Constraint("Coincident", 1, 2, 2, 1),
    Sketcher.Constraint("Coincident", 2, 2, 3, 1),
    Sketcher.Constraint("Coincident", 3, 2, 0, 1),
    Sketcher.Constraint("Vertical", 0),
    Sketcher.Constraint("Horizontal", 1),
    Sketcher.Constraint("Vertical", 2),
    Sketcher.Constraint("Horizontal", 3),
    Sketcher.Constraint("DistanceX", 1, 1, 1, 2, Q("24 mm")),
    Sketcher.Constraint("DistanceY", 0, 2, 0, 1, Q("2 mm")),
    Sketcher.Constraint("DistanceX", -1, 1, 0, 2, Q("4 mm")),
    Sketcher.Constraint("DistanceY", -1, 1, 0, 2, Q("11 mm")),
])
sketch22.setExpression("Constraints[8]", "Params.sketch22_width")
sketch22.setExpression("Constraints[9]", "Params.sketch22_height")
pad22 = body22.newObject("PartDesign::Pad", "Pad021")
pad22.Profile = sketch22
pad22.setExpression("Length", "Params.pad22_length")

doc.recompute()
